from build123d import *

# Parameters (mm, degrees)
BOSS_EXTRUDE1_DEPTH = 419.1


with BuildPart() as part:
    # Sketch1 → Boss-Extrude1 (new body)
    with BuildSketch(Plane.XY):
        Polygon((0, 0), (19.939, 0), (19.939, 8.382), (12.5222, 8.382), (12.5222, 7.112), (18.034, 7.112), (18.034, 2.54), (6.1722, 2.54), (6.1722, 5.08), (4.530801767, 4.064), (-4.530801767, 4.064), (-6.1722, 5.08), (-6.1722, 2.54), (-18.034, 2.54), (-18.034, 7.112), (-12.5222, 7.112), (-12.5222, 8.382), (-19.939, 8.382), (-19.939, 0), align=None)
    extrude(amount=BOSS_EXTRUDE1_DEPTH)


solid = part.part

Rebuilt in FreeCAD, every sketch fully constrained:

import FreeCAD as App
import Part
import Sketcher
from FreeCAD import Vector
Q = App.Units.Quantity

doc = App.newDocument("Part")
params = doc.addObject("Spreadsheet::Sheet", "Params")
for row, (alias, value) in enumerate([
    ("sketch1_height", "0.1 in"),
    ("sketch1_width", "1.57 in"),
    ("sketch1_height2", "0.33 in"),
    ("sketch1_height3", "0.05 in"),
    ("sketch1_height4", "0.18 in"),
    ("pad1_length", "16.5 in"),
], start=1):
    params.set(f"A{row}", alias)
    params.set(f"B{row}", "=" + value)
    params.setAlias(f"B{row}", alias)

body = doc.addObject("PartDesign::Body", "Body")

sketch1 = doc.addObject("Sketcher::SketchObject", "Sketch")
body.addObject(sketch1)
sketch1.AttachmentSupport = (doc.XY_Plane, [""])
sketch1.MapMode = "FlatFace"
sketch1.addGeometry(Part.LineSegment(Vector(19.9, 0, 0), Vector(19.9, 8.4, 0)), False)
sketch1.addGeometry(Part.LineSegment(Vector(19.9, 8.4, 0), Vector(12.5, 8.4, 0)), False)
sketch1.addGeometry(Part.LineSegment(Vector(12.5, 8.4, 0), Vector(12.5, 7.1, 0)), False)
sketch1.addGeometry(Part.LineSegment(Vector(12.5, 7.1, 0), Vector(18, 7.1, 0)), False)
sketch1.addGeometry(Part.LineSegment(Vector(18, 7.1, 0), Vector(18, 2.5, 0)), False)
sketch1.addGeometry(Part.LineSegment(Vector(18, 2.5, 0), Vector(6.2, 2.5, 0)), False)
sketch1.addGeometry(Part.LineSegment(Vector(6.2, 2.5, 0), Vector(6.2, 5.1, 0)), False)
sketch1.addGeometry(Part.LineSegment(Vector(6.2, 5.1, 0), Vector(4.5, 4.1, 0)), False)
sketch1.addGeometry(Part.LineSegment(Vector(4.5, 4.1, 0), Vector(-4.5, 4.1, 0)), False)
sketch1.addGeometry(Part.LineSegment(Vector(-4.5, 4.1, 0), Vector(-6.2, 5.1, 0)), False)
sketch1.addGeometry(Part.LineSegment(Vector(-6.2, 5.1, 0), Vector(-6.2, 2.5, 0)), False)
sketch1.addGeometry(Part.LineSegment(Vector(-6.2, 2.5, 0), Vector(-18, 2.5, 0)), False)
sketch1.addGeometry(Part.LineSegment(Vector(-18, 2.5, 0), Vector(-18, 7.1, 0)), False)
sketch1.addGeometry(Part.LineSegment(Vector(-18, 7.1, 0), Vector(-12.5, 7.1, 0)), False)
sketch1.addGeometry(Part.LineSegment(Vector(-12.5, 7.1, 0), Vector(-12.5, 8.4, 0)), False)
sketch1.addGeometry(Part.LineSegment(Vector(-12.5, 8.4, 0), Vector(-19.9, 8.4, 0)), False)
sketch1.addGeometry(Part.LineSegment(Vector(-19.9, 8.4, 0), Vector(-19.9, 0, 0)), False)
sketch1.addGeometry(Part.LineSegment(Vector(-19.9, 0, 0), Vector(19.9, 0, 0)), False)
sketch1.addConstraint(Sketcher.Constraint("Coincident", 0, 2, 1, 1))
sketch1.addConstraint(Sketcher.Constraint("Coincident", 1, 2, 2, 1))
sketch1.addConstraint(Sketcher.Constraint("Coincident", 2, 2, 3, 1))
sketch1.addConstraint(Sketcher.Constraint("Coincident", 3, 2, 4, 1))
sketch1.addConstraint(Sketcher.Constraint("Coincident", 4, 2, 5, 1))
sketch1.addConstraint(Sketcher.Constraint("Coincident", 5, 2, 6, 1))
sketch1.addConstraint(Sketcher.Constraint("Coincident", 6, 2, 7, 1))
sketch1.addConstraint(Sketcher.Constraint("Coincident", 7, 2, 8, 1))
sketch1.addConstraint(Sketcher.Constraint("Coincident", 8, 2, 9, 1))
sketch1.addConstraint(Sketcher.Constraint("Coincident", 9, 2, 10, 1))
sketch1.addConstraint(Sketcher.Constraint("Coincident", 10, 2, 11, 1))
sketch1.addConstraint(Sketcher.Constraint("Coincident", 11, 2, 12, 1))
sketch1.addConstraint(Sketcher.Constraint("Coincident", 12, 2, 13, 1))
sketch1.addConstraint(Sketcher.Constraint("Coincident", 13, 2, 14, 1))
sketch1.addConstraint(Sketcher.Constraint("Coincident", 14, 2, 15, 1))
sketch1.addConstraint(Sketcher.Constraint("Coincident", 15, 2, 16, 1))
sketch1.addConstraint(Sketcher.Constraint("Coincident", 16, 2, 17, 1))
sketch1.addConstraint(Sketcher.Constraint("Coincident", 17, 2, 0, 1))
sketch1.addConstraint(Sketcher.Constraint("Vertical", 0))
sketch1.addConstraint(Sketcher.Constraint("Horizontal", 1))
sketch1.addConstraint(Sketcher.Constraint("Vertical", 2))
sketch1.addConstraint(Sketcher.Constraint("Horizontal", 3))
sketch1.addConstraint(Sketcher.Constraint("Vertical", 4))
sketch1.addConstraint(Sketcher.Constraint("Horizontal", 5))
sketch1.addConstraint(Sketcher.Constraint("Vertical", 6))
sketch1.addConstraint(Sketcher.Constraint("Horizontal", 8))
sketch1.addConstraint(Sketcher.Constraint("Vertical", 10))
sketch1.addConstraint(Sketcher.Constraint("Horizontal", 11))
sketch1.addConstraint(Sketcher.Constraint("Vertical", 12))
sketch1.addConstraint(Sketcher.Constraint("Horizontal", 13))
sketch1.addConstraint(Sketcher.Constraint("Vertical", 14))
sketch1.addConstraint(Sketcher.Constraint("Horizontal", 15))
sketch1.addConstraint(Sketcher.Constraint("Vertical", 16))
sketch1.addConstraint(Sketcher.Constraint("Horizontal", 17))
sketch1.addConstraint(Sketcher.Constraint("Symmetric", 16, 2, 17, 2, -1, 1))
sketch1.addConstraint(Sketcher.Constraint("Symmetric", 6, 2, 9, 2, -2))
sketch1.addConstraint(Sketcher.Constraint("Symmetric", 4, 2, 11, 2, -2))
sketch1.addConstraint(Sketcher.Constraint("Symmetric", 2, 2, 13, 2, -2))
sketch1.addConstraint(Sketcher.Constraint("Horizontal", 1, 2, 14, 2))
sketch1.addConstraint(Sketcher.Constraint("Equal", 7, 9))
sketch1.addConstraint(Sketcher.Constraint("DistanceY", 6, 1, 6, 2, Q("0.1 in")))
sketch1.addConstraint(Sketcher.Constraint("DistanceX", 17, 1, 17, 2, Q("1.57 in")))
sketch1.addConstraint(Sketcher.Constraint("DistanceY", 0, 1, 0, 2, Q("0.33 in")))
sketch1.addConstraint(Sketcher.Constraint("DistanceY", 2, 2, 2, 1, Q("0.05 in")))
sketch1.addConstraint(Sketcher.Constraint("DistanceY", 4, 2, 4, 1, Q("0.18 in")))
sketch1.addConstraint(Sketcher.Constraint("DistanceX", 1, 2, 1, 1, Q("0.292 in")))
sketch1.addConstraint(Sketcher.Constraint("DistanceX", 3, 1, 3, 2, Q("0.217 in")))
sketch1.addConstraint(Sketcher.Constraint("DistanceX", 5, 2, 5, 1, Q("0.467 in")))
sketch1.addConstraint(Sketcher.Constraint("DistanceY", -1, 1, 7, 2, Q("0.16 in")))
sketch1.addConstraint(Sketcher.Constraint("Distance", 7, Q("0.076 in")))
sketch1.setExpression("Constraints[40]", "Params.sketch1_height")
sketch1.setExpression("Constraints[41]", "Params.sketch1_width")
sketch1.setExpression("Constraints[42]", "Params.sketch1_height2")
sketch1.setExpression("Constraints[43]", "Params.sketch1_height3")
sketch1.setExpression("Constraints[44]", "Params.sketch1_height4")
pad1 = doc.addObject("PartDesign::Pad", "Pad")
body.addObject(pad1)
pad1.Profile = sketch1
pad1.setExpression("Length", "Params.pad1_length")

doc.recompute()
